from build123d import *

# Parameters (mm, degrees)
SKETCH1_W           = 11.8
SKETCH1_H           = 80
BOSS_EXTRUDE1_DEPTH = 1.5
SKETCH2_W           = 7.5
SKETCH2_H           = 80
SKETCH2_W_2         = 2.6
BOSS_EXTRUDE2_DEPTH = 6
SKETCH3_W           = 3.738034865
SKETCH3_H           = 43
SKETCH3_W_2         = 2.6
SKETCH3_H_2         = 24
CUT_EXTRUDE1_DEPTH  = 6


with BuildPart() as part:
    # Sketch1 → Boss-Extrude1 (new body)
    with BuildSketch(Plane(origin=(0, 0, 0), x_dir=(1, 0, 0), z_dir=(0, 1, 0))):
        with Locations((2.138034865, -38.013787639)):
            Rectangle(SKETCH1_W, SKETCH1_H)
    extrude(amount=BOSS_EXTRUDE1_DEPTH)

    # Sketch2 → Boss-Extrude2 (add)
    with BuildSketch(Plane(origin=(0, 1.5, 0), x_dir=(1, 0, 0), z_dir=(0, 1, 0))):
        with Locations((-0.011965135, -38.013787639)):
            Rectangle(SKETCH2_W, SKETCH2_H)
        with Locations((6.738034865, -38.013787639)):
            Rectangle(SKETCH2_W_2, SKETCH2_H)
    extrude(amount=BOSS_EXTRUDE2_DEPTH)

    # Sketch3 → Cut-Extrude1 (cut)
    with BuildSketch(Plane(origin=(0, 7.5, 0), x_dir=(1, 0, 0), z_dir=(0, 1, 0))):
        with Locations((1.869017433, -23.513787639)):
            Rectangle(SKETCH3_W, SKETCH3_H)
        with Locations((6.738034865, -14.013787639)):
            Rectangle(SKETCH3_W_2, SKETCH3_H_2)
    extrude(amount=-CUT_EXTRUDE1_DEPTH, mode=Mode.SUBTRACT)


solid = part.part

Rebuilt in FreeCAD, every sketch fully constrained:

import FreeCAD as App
import Part
import Sketcher
from FreeCAD import Vector

doc = App.newDocument("Part")
body = doc.addObject("PartDesign::Body", "Body")

sketch1 = body.newObject("Sketcher::SketchObject", "Sketch")
sketch1.AttachmentSupport = (doc.getObject("XZ_Plane"), [""])
sketch1.MapMode = "FlatFace"
sketch1.addGeometry([
    Part.LineSegment(Vector(-4, -2, 0), Vector(-4, 78, 0)),
    Part.LineSegment(Vector(-4, 78, 0), Vector(8, 78, 0)),
    Part.LineSegment(Vector(8, 78, 0), Vector(8, -2, 0)),
    Part.LineSegment(Vector(8, -2, 0), Vector(-4, -2, 0)),
], False)
sketch1.addConstraint([
    Sketcher.Constraint("Coincident", 0, 2, 1, 1),
    Sketcher.Constraint("Coincident", 1, 2, 2, 1),
    Sketcher.Constraint("Coincident", 2, 2, 3, 1),
    Sketcher.Constraint("Coincident", 3, 2, 0, 1),
    Sketcher.Constraint("Vertical", 0),
    Sketcher.Constraint("Horizontal", 1),
    Sketcher.Constraint("Vertical", 2),
    Sketcher.Constraint("Horizontal", 3),
    Sketcher.Constraint("DistanceY", 0, 1, 0, 2, 80.0),
    Sketcher.Constraint("DistanceX", 1, 1, 1, 2, 11.8),
    Sketcher.Constraint("DistanceX", 0, 2, -1, 1, 3.761965),
    Sketcher.Constraint("DistanceY", -1, 1, 0, 2, 78.013788),
])
pad1 = body.newObject("PartDesign::Pad", "Pad")
pad1.Profile = sketch1
pad1.Length = 1.5
pad1.Reversed = True

sketch2 = body.newObject("Sketcher::SketchObject", "Sketch001")
sketch2.AttachmentSupport = (doc.getObject("XZ_Plane"), [""])
sketch2.MapMode = "FlatFace"
sketch2.AttachmentOffset = App.Placement(Vector(0, 0, -1.5), App.Rotation())
sketch2.addGeometry([
    Part.LineSegment(Vector(-3.8, -2, 0), Vector(-3.8, 78, 0)),
    Part.LineSegment(Vector(-3.8, 78, 0), Vector(3.7, 78, 0)),
    Part.LineSegment(Vector(3.7, 78, 0), Vector(3.7, -2, 0)),
    Part.LineSegment(Vector(3.7, -2, 0), Vector(-3.8, -2, 0)),
    Part.LineSegment(Vector(5.4, -2, 0), Vector(5.4, 78, 0)),
    Part.LineSegment(Vector(5.4, 78, 0), Vector(8, 78, 0)),
    Part.LineSegment(Vector(8, 78, 0), Vector(8, -2, 0)),
    Part.LineSegment(Vector(8, -2, 0), Vector(5.4, -2, 0)),
], False)
sketch2.addConstraint([
    Sketcher.Constraint("Coincident", 0, 2, 1, 1),
    Sketcher.Constraint("Coincident", 1, 2, 2, 1),
    Sketcher.Constraint("Coincident", 2, 2, 3, 1),
    Sketcher.Constraint("Coincident", 3, 2, 0, 1),
    Sketcher.Constraint("Coincident", 4, 2, 5, 1),
    Sketcher.Constraint("Coincident", 5, 2, 6, 1),
    Sketcher.Constraint("Coincident", 6, 2, 7, 1),
    Sketcher.Constraint("Coincident", 7, 2, 4, 1),
    Sketcher.Constraint("Vertical", 0),
    Sketcher.Constraint("Horizontal", 1),
    Sketcher.Constraint("Vertical", 2),
    Sketcher.Constraint("Horizontal", 3),
    Sketcher.Constraint("Vertical", 4),
    Sketcher.Constraint("Horizontal", 5),
    Sketcher.Constraint("Vertical", 6),
    Sketcher.Constraint("Horizontal", 7),
    Sketcher.Constraint("Horizontal", 1, 2, 4, 2),
    Sketcher.Constraint("Horizontal", 3, 2, 6, 2),
    Sketcher.Constraint("DistanceY", 0, 1, 0, 2, 80.0),
    Sketcher.Constraint("DistanceX", 1, 1, 1, 2, 7.5),
    Sketcher.Constraint("DistanceX", 5, 1, 5, 2, 2.6),
    Sketcher.Constraint("DistanceX", 1, 2, 4, 2, 1.7),
    Sketcher.Constraint("DistanceX", 0, 2, -1, 1, 3.761965),
    Sketcher.Constraint("DistanceY", -1, 1, 0, 2, 78.013788),
])
pad2 = body.newObject("PartDesign::Pad", "Pad001")
pad2.Profile = sketch2
pad2.Length = 6
pad2.Reversed = True

sketch3 = body.newObject("Sketcher::SketchObject", "Sketch002")
sketch3.AttachmentSupport = (doc.getObject("XZ_Plane"), [""])
sketch3.MapMode = "FlatFace"
sketch3.AttachmentOffset = App.Placement(Vector(0, 0, -7.5), App.Rotation())
sketch3.addGeometry([
    Part.LineSegment(Vector(0, 2, 0), Vector(0, 45, 0)),
    Part.LineSegment(Vector(0, 45, 0), Vector(3.7, 45, 0)),
    Part.LineSegment(Vector(3.7, 45, 0), Vector(3.7, 2, 0)),
    Part.LineSegment(Vector(3.7, 2, 0), Vector(0, 2, 0)),
    Part.LineSegment(Vector(5.4, 2, 0), Vector(5.4, 26, 0)),
    Part.LineSegment(Vector(5.4, 26, 0), Vector(8, 26, 0)),
    Part.LineSegment(Vector(8, 26, 0), Vector(8, 2, 0)),
    Part.LineSegment(Vector(8, 2, 0), Vector(5.4, 2, 0)),
], False)
sketch3.addConstraint([
    Sketcher.Constraint("Coincident", 0, 2, 1, 1),
    Sketcher.Constraint("Coincident", 1, 2, 2, 1),
    Sketcher.Constraint("Coincident", 2, 2, 3, 1),
    Sketcher.Constraint("Coincident", 3, 2, 0, 1),
    Sketcher.Constraint("Coincident", 4, 2, 5, 1),
    Sketcher.Constraint("Coincident", 5, 2, 6, 1),
    Sketcher.Constraint("Coincident", 6, 2, 7, 1),
    Sketcher.Constraint("Coincident", 7, 2, 4, 1),
    Sketcher.Constraint("Vertical", 0),
    Sketcher.Constraint("Horizontal", 1),
    Sketcher.Constraint("Vertical", 2),
    Sketcher.Constraint("Horizontal", 3),
    Sketcher.Constraint("Vertical", 4),
    Sketcher.Constraint("Horizontal", 5),
    Sketcher.Constraint("Vertical", 6),
    Sketcher.Constraint("Horizontal", 7),
    Sketcher.Constraint("PointOnObject", 0, 2, -2),
    Sketcher.Constraint("Horizontal", 3, 2, 6, 2),
    Sketcher.Constraint("DistanceY", 0, 1, 0, 2, 43.0),
    Sketcher.Constraint("DistanceY", 4, 1, 4, 2, 24.0),
    Sketcher.Constraint("DistanceX", 5, 1, 5, 2, 2.6),
    Sketcher.Constraint("DistanceX", 1, 2, 4, 2, 1.7),
    Sketcher.Constraint("DistanceX", 1, 1, 1, 2, 3.738035),
    Sketcher.Constraint("DistanceY", -1, 1, 0, 2, 45.013788),
])
pocket1 = body.newObject("PartDesign::Pocket", "Pocket")
pocket1.Profile = sketch3
pocket1.Length = 6
pocket1.Reversed = True

doc.recompute()
